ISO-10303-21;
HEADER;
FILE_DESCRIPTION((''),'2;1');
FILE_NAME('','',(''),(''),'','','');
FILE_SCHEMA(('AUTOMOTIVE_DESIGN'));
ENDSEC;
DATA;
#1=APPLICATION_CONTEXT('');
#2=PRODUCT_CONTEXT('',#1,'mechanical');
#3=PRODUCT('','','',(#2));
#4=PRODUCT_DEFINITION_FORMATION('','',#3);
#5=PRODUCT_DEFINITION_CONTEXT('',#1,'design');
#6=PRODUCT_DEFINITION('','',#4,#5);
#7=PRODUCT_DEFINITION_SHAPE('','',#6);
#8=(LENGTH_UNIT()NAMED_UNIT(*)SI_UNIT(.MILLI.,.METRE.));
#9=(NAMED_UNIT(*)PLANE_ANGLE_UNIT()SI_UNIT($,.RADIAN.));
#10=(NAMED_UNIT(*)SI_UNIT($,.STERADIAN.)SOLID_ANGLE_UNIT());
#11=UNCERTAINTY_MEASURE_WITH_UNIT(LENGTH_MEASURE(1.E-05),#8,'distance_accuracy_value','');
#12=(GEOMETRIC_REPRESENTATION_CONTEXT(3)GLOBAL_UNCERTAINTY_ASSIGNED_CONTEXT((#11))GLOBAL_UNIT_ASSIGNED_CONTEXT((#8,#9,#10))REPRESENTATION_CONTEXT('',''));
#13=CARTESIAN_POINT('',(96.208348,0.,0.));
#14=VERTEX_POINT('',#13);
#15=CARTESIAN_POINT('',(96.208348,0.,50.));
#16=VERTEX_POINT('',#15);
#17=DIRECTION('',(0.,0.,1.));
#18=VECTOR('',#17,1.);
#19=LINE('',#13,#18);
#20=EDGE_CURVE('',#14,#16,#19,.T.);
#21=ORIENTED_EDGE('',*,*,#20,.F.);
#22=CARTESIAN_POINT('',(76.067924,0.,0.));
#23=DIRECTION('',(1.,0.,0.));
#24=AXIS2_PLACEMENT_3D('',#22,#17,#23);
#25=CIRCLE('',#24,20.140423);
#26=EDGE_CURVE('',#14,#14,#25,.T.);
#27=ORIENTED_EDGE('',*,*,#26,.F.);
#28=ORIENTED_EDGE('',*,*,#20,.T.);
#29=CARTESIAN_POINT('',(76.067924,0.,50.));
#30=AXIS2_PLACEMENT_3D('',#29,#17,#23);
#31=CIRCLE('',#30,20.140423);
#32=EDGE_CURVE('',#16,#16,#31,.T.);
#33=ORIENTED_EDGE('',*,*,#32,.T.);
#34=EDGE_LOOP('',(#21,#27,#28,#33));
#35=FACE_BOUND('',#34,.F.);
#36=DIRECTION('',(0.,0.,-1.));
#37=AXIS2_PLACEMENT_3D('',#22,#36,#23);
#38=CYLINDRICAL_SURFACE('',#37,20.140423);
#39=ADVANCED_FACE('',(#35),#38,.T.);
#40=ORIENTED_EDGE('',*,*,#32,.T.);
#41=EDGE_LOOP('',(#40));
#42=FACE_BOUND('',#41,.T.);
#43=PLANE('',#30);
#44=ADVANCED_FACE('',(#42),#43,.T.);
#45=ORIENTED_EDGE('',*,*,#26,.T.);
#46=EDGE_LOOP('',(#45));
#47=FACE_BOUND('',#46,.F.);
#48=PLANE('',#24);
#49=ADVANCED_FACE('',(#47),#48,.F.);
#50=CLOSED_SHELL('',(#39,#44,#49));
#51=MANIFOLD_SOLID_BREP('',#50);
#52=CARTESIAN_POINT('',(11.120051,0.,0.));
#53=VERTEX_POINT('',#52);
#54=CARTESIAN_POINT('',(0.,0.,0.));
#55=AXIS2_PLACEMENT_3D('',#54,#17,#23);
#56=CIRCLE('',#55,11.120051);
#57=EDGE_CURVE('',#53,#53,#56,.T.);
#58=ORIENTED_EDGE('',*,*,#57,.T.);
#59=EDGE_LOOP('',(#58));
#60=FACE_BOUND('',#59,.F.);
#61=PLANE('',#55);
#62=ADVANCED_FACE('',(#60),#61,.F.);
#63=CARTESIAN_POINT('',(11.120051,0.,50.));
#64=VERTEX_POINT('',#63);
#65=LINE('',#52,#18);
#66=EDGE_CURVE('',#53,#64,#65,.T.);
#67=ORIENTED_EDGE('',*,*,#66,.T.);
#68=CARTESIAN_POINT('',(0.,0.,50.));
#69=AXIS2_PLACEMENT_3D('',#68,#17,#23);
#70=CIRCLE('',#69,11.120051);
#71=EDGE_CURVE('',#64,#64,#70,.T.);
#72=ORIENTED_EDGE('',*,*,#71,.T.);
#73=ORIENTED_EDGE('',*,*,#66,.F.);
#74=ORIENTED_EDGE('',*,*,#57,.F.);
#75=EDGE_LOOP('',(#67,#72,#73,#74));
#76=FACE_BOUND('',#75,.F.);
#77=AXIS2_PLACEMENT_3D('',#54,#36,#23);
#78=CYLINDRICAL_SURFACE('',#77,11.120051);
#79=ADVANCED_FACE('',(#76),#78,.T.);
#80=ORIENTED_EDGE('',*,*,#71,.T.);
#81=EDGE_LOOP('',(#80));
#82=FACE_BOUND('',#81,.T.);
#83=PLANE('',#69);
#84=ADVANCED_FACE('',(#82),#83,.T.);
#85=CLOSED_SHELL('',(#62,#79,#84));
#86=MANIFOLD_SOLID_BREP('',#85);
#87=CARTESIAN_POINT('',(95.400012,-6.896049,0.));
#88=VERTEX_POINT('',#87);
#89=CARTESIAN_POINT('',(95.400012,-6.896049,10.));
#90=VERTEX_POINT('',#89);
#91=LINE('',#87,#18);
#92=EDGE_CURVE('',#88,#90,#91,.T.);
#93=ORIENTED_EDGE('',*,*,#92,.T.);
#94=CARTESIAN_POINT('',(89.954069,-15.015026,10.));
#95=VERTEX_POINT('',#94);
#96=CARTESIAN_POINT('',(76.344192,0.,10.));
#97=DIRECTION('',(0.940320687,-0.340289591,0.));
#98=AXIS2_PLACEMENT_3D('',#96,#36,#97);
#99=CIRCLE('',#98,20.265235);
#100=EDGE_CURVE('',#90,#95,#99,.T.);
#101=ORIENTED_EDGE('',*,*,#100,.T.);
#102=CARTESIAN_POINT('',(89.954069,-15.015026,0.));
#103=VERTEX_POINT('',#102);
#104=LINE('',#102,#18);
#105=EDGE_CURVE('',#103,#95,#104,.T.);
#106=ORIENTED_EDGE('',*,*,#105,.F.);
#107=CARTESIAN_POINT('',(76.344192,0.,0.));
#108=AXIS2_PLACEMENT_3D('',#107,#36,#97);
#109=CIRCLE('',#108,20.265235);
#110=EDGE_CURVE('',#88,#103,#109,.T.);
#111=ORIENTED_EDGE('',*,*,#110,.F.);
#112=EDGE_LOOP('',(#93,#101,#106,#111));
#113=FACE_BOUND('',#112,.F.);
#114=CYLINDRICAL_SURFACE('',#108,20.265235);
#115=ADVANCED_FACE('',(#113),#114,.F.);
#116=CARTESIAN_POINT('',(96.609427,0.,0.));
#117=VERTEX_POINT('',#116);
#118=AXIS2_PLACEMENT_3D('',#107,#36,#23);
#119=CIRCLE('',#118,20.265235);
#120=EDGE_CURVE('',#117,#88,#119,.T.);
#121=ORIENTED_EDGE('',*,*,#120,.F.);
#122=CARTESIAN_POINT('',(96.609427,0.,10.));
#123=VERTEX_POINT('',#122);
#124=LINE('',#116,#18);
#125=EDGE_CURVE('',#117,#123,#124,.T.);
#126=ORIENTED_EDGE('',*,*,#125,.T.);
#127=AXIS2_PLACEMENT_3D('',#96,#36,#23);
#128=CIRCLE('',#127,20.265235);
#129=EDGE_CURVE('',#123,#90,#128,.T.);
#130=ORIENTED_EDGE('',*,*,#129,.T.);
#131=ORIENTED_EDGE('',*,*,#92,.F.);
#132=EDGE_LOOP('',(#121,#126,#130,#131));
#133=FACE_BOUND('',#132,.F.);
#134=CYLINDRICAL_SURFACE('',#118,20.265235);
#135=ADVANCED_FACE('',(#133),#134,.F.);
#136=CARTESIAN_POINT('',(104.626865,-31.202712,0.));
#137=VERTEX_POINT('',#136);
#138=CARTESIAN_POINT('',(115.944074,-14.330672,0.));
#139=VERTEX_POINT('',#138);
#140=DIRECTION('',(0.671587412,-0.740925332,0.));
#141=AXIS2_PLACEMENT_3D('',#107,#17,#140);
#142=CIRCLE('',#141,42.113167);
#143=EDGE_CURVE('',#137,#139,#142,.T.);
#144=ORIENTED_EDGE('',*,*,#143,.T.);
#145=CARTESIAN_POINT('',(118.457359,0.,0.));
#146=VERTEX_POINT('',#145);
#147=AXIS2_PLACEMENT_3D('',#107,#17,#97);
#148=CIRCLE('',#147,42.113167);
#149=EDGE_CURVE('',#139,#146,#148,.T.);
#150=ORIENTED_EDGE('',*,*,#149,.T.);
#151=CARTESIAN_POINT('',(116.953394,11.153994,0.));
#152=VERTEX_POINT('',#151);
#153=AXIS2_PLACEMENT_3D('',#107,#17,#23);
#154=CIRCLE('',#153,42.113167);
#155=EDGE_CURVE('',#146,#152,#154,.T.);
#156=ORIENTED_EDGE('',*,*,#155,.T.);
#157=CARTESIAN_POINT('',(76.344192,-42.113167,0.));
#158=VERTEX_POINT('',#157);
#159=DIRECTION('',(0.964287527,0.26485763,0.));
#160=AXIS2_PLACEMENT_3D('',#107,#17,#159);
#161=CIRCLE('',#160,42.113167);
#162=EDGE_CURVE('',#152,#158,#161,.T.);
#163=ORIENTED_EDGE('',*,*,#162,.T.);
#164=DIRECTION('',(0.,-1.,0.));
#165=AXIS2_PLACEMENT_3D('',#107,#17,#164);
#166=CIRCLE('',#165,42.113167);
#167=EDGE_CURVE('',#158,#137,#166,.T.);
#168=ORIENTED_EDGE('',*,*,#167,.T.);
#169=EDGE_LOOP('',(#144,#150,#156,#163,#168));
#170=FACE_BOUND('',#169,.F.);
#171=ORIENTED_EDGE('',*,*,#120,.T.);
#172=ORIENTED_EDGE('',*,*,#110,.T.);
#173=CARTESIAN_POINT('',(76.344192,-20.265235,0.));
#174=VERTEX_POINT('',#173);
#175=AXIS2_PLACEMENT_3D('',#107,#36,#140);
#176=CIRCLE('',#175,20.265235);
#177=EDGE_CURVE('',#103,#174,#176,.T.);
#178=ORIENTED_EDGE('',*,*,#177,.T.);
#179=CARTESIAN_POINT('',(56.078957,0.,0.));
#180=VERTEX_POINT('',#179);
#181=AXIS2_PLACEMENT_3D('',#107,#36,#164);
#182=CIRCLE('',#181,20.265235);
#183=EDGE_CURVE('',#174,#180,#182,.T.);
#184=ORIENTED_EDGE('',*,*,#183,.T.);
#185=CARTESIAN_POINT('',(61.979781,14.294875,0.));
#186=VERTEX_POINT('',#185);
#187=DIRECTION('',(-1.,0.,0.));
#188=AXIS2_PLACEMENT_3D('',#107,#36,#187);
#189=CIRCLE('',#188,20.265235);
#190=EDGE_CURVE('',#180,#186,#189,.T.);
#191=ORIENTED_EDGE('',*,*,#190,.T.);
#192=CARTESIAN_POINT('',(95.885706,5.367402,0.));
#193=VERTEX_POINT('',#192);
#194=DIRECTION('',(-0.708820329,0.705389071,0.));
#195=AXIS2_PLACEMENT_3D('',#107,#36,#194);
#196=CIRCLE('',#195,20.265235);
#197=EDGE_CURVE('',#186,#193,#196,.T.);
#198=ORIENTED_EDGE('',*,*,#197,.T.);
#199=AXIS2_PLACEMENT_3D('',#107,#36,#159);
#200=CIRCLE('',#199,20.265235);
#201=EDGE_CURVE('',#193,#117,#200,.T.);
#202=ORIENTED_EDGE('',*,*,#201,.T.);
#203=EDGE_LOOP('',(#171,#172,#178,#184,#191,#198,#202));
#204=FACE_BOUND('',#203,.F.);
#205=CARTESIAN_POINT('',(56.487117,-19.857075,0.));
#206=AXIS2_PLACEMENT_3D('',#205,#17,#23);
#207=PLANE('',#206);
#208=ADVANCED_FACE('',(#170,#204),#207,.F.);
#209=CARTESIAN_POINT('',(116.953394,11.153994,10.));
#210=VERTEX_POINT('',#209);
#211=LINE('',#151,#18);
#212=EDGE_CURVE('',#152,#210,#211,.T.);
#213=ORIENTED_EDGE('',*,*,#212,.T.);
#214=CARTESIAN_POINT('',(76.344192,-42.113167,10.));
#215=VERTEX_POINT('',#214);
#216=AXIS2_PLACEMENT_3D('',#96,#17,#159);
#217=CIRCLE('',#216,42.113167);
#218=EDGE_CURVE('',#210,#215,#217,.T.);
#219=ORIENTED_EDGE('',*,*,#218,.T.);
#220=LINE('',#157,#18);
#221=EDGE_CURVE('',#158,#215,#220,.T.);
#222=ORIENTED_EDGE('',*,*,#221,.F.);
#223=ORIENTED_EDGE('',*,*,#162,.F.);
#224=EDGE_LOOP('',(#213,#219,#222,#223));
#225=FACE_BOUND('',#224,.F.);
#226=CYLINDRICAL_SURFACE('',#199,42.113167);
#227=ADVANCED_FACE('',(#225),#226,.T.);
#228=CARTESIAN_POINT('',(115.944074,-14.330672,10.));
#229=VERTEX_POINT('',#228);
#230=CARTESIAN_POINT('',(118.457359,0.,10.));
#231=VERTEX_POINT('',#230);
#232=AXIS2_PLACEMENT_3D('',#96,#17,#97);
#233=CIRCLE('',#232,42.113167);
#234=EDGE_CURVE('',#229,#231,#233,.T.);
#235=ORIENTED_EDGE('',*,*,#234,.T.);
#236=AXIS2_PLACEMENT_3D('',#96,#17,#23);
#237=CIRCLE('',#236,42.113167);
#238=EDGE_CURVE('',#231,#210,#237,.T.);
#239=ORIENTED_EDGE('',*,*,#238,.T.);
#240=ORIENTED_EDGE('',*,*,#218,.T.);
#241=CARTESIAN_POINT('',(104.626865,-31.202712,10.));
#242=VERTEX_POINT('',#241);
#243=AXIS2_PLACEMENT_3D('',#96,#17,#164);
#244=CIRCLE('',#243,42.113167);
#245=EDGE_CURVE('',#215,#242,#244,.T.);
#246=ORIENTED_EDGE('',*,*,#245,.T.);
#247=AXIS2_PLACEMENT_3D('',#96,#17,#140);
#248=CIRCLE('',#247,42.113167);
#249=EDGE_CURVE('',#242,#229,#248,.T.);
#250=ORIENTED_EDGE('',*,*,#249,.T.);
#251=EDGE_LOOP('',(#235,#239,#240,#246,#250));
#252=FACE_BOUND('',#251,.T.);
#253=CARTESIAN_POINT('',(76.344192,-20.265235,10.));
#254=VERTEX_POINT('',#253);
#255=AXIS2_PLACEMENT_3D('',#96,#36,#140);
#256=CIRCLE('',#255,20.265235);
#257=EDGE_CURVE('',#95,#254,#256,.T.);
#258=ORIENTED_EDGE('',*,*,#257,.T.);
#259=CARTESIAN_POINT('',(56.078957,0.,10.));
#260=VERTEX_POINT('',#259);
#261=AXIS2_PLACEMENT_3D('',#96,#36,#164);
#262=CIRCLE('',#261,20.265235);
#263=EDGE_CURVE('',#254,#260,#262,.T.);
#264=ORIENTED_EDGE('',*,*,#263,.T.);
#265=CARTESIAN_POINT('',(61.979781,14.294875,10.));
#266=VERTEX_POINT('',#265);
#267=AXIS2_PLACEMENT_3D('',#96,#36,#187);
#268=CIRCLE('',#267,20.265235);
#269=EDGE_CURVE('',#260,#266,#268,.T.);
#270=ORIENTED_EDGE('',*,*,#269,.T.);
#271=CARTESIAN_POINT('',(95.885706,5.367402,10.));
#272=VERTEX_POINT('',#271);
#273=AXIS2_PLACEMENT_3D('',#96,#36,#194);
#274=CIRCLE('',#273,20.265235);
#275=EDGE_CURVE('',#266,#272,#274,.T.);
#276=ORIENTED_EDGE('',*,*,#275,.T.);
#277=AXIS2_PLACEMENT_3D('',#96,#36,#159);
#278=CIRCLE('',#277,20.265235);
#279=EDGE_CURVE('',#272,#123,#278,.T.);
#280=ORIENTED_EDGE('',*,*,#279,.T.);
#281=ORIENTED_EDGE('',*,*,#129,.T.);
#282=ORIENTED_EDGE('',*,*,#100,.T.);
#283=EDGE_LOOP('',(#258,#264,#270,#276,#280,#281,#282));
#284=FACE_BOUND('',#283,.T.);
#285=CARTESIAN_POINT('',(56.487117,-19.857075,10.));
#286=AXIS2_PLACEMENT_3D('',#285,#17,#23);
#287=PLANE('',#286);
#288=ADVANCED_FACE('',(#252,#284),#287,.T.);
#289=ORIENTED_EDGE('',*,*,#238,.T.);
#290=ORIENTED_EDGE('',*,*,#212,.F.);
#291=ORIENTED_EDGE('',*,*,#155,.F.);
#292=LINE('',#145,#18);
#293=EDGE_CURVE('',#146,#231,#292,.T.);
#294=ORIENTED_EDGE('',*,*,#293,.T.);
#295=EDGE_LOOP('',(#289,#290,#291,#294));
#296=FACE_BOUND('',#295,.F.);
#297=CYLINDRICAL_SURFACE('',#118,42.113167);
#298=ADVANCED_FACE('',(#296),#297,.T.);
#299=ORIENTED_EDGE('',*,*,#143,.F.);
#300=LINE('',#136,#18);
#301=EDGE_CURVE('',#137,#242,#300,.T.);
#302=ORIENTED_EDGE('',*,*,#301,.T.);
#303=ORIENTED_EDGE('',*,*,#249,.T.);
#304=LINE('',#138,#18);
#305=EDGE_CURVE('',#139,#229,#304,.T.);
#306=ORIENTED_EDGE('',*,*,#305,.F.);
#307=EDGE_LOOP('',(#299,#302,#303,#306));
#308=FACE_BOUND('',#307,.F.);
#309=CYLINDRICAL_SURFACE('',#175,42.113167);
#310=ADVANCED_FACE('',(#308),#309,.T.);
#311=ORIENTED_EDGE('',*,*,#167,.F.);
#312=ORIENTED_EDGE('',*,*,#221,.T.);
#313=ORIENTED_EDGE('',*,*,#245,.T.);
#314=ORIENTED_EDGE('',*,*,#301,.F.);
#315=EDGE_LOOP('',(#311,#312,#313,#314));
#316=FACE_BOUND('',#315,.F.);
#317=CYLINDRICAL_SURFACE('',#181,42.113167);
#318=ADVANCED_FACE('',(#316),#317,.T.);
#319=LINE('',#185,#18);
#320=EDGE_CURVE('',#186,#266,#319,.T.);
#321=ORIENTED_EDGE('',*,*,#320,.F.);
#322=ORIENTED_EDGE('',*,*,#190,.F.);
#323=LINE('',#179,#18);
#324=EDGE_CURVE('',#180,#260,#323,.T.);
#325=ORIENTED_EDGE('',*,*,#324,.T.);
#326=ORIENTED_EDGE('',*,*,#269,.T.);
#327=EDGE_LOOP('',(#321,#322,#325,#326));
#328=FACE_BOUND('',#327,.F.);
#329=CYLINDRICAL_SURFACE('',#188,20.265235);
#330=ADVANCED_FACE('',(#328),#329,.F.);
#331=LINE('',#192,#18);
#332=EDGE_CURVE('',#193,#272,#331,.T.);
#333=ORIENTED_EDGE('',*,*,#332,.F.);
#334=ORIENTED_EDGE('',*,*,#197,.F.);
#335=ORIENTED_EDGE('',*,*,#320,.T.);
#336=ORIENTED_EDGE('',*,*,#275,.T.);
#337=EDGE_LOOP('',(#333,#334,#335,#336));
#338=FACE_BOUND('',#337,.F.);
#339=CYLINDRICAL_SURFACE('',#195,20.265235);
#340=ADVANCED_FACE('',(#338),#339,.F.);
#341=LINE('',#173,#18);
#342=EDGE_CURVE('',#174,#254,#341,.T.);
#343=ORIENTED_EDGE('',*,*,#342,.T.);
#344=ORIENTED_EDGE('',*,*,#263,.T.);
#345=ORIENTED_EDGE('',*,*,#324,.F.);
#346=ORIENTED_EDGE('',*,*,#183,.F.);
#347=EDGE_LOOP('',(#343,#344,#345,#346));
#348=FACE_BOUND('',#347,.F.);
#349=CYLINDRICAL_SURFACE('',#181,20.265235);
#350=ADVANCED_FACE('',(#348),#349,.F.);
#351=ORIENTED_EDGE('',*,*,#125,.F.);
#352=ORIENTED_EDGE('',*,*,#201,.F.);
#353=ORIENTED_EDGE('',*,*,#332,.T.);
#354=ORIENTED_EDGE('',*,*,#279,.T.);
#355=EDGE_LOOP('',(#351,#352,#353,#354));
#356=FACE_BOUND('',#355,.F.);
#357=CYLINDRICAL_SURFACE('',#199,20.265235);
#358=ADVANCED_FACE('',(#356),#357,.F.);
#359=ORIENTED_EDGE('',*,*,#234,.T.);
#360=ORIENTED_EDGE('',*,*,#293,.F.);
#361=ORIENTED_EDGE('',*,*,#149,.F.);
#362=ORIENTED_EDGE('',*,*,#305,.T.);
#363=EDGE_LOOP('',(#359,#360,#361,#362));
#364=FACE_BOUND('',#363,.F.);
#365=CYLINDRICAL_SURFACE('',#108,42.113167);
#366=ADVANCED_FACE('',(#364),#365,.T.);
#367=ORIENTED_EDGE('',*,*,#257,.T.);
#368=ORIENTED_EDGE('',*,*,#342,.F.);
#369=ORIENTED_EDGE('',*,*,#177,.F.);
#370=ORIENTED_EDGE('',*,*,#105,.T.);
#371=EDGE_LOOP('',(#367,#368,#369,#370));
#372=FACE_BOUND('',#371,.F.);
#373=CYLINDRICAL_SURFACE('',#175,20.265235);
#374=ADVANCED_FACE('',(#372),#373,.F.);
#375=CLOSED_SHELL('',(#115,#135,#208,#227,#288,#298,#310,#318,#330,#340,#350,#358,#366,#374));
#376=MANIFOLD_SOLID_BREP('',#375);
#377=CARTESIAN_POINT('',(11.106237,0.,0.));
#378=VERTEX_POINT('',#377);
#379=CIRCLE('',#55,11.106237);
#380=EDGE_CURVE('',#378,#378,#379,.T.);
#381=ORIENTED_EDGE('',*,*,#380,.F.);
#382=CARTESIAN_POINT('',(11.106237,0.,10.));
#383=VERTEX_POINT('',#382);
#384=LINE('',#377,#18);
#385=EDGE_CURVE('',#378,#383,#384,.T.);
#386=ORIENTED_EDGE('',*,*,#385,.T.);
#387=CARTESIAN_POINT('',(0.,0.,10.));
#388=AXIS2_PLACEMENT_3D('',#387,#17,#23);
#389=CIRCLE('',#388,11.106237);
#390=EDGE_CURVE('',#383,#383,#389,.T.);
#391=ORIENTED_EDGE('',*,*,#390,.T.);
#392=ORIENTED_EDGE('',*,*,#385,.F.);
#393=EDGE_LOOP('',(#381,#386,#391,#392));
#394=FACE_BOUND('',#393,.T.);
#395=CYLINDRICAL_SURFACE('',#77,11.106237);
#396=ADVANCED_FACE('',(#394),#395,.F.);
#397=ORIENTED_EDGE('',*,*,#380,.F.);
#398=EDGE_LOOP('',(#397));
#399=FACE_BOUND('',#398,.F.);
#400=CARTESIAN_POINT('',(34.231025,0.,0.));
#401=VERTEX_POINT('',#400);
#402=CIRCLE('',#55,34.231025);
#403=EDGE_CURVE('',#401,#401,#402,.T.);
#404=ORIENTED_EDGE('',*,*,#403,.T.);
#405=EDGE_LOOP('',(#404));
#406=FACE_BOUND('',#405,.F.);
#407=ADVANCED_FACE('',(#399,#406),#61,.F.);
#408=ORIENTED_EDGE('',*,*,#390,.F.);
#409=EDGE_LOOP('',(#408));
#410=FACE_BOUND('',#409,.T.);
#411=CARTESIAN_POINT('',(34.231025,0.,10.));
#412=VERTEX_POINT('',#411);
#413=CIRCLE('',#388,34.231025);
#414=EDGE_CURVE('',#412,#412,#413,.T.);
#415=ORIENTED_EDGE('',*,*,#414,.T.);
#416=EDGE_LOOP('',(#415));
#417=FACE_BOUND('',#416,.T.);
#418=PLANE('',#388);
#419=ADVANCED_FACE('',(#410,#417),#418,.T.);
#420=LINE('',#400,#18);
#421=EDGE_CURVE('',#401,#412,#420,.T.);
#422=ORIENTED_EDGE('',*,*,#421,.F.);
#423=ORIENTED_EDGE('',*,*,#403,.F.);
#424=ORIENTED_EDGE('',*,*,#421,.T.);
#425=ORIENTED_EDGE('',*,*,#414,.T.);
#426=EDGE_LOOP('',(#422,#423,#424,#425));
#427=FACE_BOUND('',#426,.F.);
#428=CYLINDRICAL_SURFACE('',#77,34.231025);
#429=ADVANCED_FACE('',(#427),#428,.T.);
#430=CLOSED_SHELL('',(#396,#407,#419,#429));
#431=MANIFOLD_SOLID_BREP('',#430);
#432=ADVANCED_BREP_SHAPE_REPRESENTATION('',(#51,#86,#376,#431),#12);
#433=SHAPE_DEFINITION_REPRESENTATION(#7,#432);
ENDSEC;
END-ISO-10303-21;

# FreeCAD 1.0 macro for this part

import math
import FreeCAD as App
import Part
import Sketcher

doc = App.newDocument("Part")
body = doc.addObject("PartDesign::Body", "Body")

# Sketch on XY plane
sketch1 = body.newObject("Sketcher::SketchObject", "Sketch")
sketch1.AttachmentSupport = (doc.getObject("XY_Plane"), [""])
sketch1.MapMode = "FlatFace"
sketch1.addGeometry(Part.Circle(App.Vector(0, 0, 0), App.Vector(0, 0, 1), 34), False)
sketch1.addGeometry(Part.Circle(App.Vector(0, 0, 0), App.Vector(0, 0, 1), 11), False)
sketch1.addConstraint(Sketcher.Constraint("Coincident", 0, 3, -1, 1))
sketch1.addConstraint(Sketcher.Constraint("Coincident", 1, 3, -1, 1))
sketch1.addConstraint(Sketcher.Constraint("Diameter", 0, 68.46205))
sketch1.addConstraint(Sketcher.Constraint("Diameter", 1, 22.212474))
pad1 = body.newObject("PartDesign::Pad", "Pad")
pad1.Profile = sketch1
pad1.Length = 10
body2 = doc.addObject("PartDesign::Body", "Body001")

# Sketch on XY plane
sketch2 = body2.newObject("Sketcher::SketchObject", "Sketch001")
sketch2.AttachmentSupport = (doc.getObject("XY_Plane001"), [""])
sketch2.MapMode = "FlatFace"
sketch2.addGeometry(Part.ArcOfCircle(Part.Circle(App.Vector(76, 0, 0), App.Vector(0, 0, 1), 42), math.radians(-90), math.radians(-48)), False)
sketch2.addGeometry(Part.ArcOfCircle(Part.Circle(App.Vector(76, 0, 0), App.Vector(0, 0, 1), 42), math.radians(-48), math.radians(-20)), False)
sketch2.addGeometry(Part.ArcOfCircle(Part.Circle(App.Vector(76, 0, 0), App.Vector(0, 0, 1), 42), math.radians(-19.89), math.radians(0)), False)
sketch2.addGeometry(Part.ArcOfCircle(Part.Circle(App.Vector(76, 0, 0), App.Vector(0, 0, 1), 42), math.radians(0), math.radians(15.36)), False)
sketch2.addGeometry(Part.ArcOfCircle(Part.Circle(App.Vector(76, 0, 0), App.Vector(0, 0, 1), 42), math.radians(15), math.radians(270)), False)
sketch2.addGeometry(Part.ArcOfCircle(Part.Circle(App.Vector(76, 0, 0), App.Vector(0, 0, 1), 20), math.radians(-48), math.radians(-20)), False)
sketch2.addGeometry(Part.ArcOfCircle(Part.Circle(App.Vector(76, 0, 0), App.Vector(0, 0, 1), 20), math.radians(-90), math.radians(-48)), False)
sketch2.addGeometry(Part.ArcOfCircle(Part.Circle(App.Vector(76, 0, 0), App.Vector(0, 0, 1), 20), math.radians(180), math.radians(270)), False)
sketch2.addGeometry(Part.ArcOfCircle(Part.Circle(App.Vector(76, 0, 0), App.Vector(0, 0, 1), 20), math.radians(135), math.radians(180)), False)
sketch2.addGeometry(Part.ArcOfCircle(Part.Circle(App.Vector(76, 0, 0), App.Vector(0, 0, 1), 20), math.radians(15), math.radians(135)), False)
sketch2.addGeometry(Part.ArcOfCircle(Part.Circle(App.Vector(76, 0, 0), App.Vector(0, 0, 1), 20), math.radians(0), math.radians(15.36)), False)
sketch2.addGeometry(Part.ArcOfCircle(Part.Circle(App.Vector(76, 0, 0), App.Vector(0, 0, 1), 20), math.radians(-19.89), math.radians(0)), False)
sketch2.addConstraint(Sketcher.Constraint("Tangent", 0, 2, 1, 1))
sketch2.addConstraint(Sketcher.Constraint("Tangent", 1, 2, 2, 1))
sketch2.addConstraint(Sketcher.Constraint("Tangent", 2, 2, 3, 1))
sketch2.addConstraint(Sketcher.Constraint("Tangent", 3, 2, 4, 1))
sketch2.addConstraint(Sketcher.Constraint("Tangent", 4, 2, 0, 1))
sketch2.addConstraint(Sketcher.Constraint("Tangent", 5, 1, 6, 2))
sketch2.addConstraint(Sketcher.Constraint("Tangent", 6, 1, 7, 2))
sketch2.addConstraint(Sketcher.Constraint("Tangent", 7, 1, 8, 2))
sketch2.addConstraint(Sketcher.Constraint("Tangent", 8, 1, 9, 2))
sketch2.addConstraint(Sketcher.Constraint("Tangent", 9, 1, 10, 2))
sketch2.addConstraint(Sketcher.Constraint("Tangent", 10, 1, 11, 2))
sketch2.addConstraint(Sketcher.Constraint("Tangent", 11, 1, 5, 2))
sketch2.addConstraint(Sketcher.Constraint("Coincident", 2, 3, 0, 3))
sketch2.addConstraint(Sketcher.Constraint("Coincident", 5, 3, 0, 3))
sketch2.addConstraint(Sketcher.Constraint("Coincident", 7, 3, 0, 3))
sketch2.addConstraint(Sketcher.Constraint("Coincident", 9, 3, 0, 3))
sketch2.addConstraint(Sketcher.Constraint("PointOnObject", 0, 3, -1))
sketch2.addConstraint(Sketcher.Constraint("PointOnObject", 2, 2, -1))
sketch2.addConstraint(Sketcher.Constraint("PointOnObject", 7, 1, -1))
sketch2.addConstraint(Sketcher.Constraint("PointOnObject", 10, 1, -1))
sketch2.addConstraint(Sketcher.Constraint("Vertical", 11, 3, 4, 2))
sketch2.addConstraint(Sketcher.Constraint("Vertical", 4, 2, 6, 1))
sketch2.addConstraint(Sketcher.Constraint("Radius", 0, 42.113167))
sketch2.addConstraint(Sketcher.Constraint("Radius", 5, 20.265235))
sketch2.addConstraint(Sketcher.Constraint("DistanceX", 3, 3, 3, 2, 40.609202))
sketch2.addConstraint(Sketcher.Constraint("DistanceX", -1, 1, 2, 2, 118.457359))
sketch2.addConstraint(Sketcher.Constraint("DistanceX", -1, 1, 5, 1, 89.954069))
sketch2.addConstraint(Sketcher.Constraint("DistanceX", -1, 1, 8, 1, 61.979781))
sketch2.addConstraint(Sketcher.Constraint("DistanceX", -1, 1, 11, 1, 95.400012))
sketch2.addConstraint(Sketcher.Constraint("DistanceX", 0, 2, 1, 2, 11.317209))
sketch2.addConstraint(Sketcher.Constraint("DistanceY", 0, 2, 1, 2, 16.87204))
sketch2.addConstraint(Sketcher.Constraint("DistanceX", 9, 1, 10, 1, 0.723722))
pad2 = body2.newObject("PartDesign::Pad", "Pad001")
pad2.Profile = sketch2
pad2.Length = 10
body3 = doc.addObject("PartDesign::Body", "Body002")

# Sketch on XY plane
sketch3 = body3.newObject("Sketcher::SketchObject", "Sketch002")
sketch3.AttachmentSupport = (doc.getObject("XY_Plane002"), [""])
sketch3.MapMode = "FlatFace"
sketch3.addGeometry(Part.Circle(App.Vector(0, 0, 0), App.Vector(0, 0, 1), 11), False)
sketch3.addConstraint(Sketcher.Constraint("Coincident", 0, 3, -1, 1))
sketch3.addConstraint(Sketcher.Constraint("Diameter", 0, 22.240102))
pad3 = body3.newObject("PartDesign::Pad", "Pad002")
pad3.Profile = sketch3
pad3.Length = 50
body4 = doc.addObject("PartDesign::Body", "Body003")

# Sketch on XY plane
sketch4 = body4.newObject("Sketcher::SketchObject", "Sketch003")
sketch4.AttachmentSupport = (doc.getObject("XY_Plane003"), [""])
sketch4.MapMode = "FlatFace"
sketch4.addGeometry(Part.Circle(App.Vector(76, 0, 0), App.Vector(0, 0, 1), 20), False)
sketch4.addConstraint(Sketcher.Constraint("PointOnObject", 0, 3, -1))
sketch4.addConstraint(Sketcher.Constraint("Diameter", 0, 40.280847))
sketch4.addConstraint(Sketcher.Constraint("DistanceX", -1, 1, 0, 3, 76.067924))
pad4 = body4.newObject("PartDesign::Pad", "Pad003")
pad4.Profile = sketch4
pad4.Length = 50

doc.recompute()
